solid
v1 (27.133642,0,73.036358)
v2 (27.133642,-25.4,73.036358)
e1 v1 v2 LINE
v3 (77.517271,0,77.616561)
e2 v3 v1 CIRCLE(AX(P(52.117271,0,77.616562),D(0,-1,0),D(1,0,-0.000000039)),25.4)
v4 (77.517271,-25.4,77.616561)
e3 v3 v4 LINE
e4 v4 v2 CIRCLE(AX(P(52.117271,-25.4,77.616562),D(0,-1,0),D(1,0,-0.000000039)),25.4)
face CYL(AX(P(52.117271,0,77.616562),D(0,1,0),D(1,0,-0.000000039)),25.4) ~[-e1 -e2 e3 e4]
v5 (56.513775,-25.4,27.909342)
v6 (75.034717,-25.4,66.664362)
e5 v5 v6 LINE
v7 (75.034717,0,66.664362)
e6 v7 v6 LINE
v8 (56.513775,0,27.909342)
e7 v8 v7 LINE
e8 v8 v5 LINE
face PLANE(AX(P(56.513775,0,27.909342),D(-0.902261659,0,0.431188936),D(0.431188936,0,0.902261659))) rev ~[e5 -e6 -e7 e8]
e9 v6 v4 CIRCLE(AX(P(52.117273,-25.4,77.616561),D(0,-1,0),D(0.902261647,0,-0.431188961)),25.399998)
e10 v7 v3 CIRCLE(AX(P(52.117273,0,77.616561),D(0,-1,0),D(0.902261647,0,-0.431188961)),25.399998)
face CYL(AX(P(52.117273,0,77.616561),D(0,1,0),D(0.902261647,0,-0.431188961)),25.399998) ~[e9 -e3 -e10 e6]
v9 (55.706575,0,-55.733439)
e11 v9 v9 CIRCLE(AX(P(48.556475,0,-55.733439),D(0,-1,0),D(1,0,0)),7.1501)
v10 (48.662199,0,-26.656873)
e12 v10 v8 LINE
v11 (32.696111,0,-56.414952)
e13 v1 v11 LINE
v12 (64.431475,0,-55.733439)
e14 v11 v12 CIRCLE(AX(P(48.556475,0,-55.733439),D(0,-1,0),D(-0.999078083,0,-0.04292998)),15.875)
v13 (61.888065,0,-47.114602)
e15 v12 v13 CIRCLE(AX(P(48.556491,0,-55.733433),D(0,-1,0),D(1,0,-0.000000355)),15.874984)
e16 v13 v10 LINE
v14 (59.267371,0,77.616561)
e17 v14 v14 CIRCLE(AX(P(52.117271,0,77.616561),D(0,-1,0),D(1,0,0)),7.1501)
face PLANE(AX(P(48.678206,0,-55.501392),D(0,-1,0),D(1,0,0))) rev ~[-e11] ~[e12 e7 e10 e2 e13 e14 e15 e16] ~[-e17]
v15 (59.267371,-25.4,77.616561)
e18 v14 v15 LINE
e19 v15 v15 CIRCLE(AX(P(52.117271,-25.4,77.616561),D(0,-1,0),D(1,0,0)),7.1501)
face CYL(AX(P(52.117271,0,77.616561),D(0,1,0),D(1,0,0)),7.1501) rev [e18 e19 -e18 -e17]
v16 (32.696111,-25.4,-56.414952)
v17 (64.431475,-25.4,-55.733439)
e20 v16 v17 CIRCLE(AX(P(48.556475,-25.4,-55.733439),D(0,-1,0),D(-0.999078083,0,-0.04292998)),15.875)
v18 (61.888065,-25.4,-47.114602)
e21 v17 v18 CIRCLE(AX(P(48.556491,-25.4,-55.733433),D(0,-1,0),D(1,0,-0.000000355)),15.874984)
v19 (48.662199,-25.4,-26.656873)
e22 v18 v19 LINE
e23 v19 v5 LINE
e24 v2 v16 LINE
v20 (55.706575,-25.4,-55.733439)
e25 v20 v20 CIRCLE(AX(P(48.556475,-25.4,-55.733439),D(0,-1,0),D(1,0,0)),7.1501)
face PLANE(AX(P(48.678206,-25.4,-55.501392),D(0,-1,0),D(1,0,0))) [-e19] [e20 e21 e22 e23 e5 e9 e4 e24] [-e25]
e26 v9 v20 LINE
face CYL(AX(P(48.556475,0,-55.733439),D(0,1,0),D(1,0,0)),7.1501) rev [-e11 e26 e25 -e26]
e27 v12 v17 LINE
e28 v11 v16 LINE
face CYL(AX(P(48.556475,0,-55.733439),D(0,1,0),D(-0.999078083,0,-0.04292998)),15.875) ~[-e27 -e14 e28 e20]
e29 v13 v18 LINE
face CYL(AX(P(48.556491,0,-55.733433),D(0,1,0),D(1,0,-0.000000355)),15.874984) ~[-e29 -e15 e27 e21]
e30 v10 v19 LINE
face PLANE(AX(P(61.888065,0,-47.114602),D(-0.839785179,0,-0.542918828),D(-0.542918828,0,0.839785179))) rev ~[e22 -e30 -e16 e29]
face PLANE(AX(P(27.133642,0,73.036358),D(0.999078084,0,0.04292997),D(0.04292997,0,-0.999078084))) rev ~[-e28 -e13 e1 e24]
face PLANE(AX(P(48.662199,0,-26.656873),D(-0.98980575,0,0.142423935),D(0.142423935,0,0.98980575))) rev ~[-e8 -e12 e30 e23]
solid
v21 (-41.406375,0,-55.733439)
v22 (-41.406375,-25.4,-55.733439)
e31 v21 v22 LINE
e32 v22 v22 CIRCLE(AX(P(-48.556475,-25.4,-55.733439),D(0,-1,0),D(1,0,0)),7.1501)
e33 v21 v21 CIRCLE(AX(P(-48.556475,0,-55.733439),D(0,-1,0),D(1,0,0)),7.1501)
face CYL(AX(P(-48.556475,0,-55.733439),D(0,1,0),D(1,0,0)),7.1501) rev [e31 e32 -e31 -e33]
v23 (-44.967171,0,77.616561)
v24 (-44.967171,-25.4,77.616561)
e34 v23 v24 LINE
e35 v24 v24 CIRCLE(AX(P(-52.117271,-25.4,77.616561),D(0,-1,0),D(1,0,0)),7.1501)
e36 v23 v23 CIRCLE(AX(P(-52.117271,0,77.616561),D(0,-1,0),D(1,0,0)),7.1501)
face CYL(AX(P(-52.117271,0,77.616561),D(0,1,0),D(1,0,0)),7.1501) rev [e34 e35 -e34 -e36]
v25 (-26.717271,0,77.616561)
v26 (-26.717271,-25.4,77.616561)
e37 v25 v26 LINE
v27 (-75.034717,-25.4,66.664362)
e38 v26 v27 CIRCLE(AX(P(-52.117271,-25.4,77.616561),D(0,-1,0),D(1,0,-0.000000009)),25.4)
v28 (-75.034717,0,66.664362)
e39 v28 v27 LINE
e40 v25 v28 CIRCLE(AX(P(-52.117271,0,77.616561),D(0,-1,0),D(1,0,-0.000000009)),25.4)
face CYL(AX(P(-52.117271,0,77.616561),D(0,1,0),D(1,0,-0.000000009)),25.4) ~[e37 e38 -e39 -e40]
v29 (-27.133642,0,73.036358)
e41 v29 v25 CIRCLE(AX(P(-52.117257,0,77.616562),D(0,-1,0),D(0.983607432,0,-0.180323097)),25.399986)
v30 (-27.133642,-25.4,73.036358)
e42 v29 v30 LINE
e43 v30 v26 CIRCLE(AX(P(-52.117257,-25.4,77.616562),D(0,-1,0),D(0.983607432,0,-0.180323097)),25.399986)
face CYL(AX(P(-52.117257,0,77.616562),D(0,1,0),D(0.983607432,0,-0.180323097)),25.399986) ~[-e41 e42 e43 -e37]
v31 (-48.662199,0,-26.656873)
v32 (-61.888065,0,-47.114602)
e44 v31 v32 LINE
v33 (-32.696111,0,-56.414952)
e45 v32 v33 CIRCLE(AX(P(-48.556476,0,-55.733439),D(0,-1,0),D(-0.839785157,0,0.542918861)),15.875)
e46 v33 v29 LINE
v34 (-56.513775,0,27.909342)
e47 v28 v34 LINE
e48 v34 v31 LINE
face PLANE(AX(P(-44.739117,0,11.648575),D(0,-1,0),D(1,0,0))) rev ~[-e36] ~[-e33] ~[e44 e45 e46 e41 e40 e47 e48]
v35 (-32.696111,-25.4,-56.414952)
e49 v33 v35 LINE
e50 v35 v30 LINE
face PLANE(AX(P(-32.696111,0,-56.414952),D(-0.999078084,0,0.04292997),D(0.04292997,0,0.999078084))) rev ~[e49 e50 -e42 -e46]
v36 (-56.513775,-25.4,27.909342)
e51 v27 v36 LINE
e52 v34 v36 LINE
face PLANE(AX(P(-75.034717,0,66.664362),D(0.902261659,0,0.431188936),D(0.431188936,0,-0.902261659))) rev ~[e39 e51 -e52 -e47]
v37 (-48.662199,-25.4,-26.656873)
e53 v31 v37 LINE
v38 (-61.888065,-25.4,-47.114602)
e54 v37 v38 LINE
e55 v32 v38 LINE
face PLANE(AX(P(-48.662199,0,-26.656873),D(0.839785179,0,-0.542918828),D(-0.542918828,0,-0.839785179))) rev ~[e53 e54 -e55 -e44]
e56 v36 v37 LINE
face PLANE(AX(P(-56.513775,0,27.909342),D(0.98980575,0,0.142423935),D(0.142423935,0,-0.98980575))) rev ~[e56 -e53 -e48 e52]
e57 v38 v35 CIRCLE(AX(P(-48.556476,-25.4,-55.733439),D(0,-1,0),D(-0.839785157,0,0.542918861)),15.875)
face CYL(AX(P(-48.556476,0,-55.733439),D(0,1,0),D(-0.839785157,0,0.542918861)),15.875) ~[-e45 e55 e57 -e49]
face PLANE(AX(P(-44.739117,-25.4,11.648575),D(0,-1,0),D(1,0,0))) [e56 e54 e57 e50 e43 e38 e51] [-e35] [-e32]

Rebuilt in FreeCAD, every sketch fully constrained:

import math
import FreeCAD as App
import Part
import Sketcher
Q = App.Units.Quantity

doc = App.newDocument("Part")
body = doc.addObject("PartDesign::Body", "Body")
body.AllowCompound = True

sketch1 = body.newObject("Sketcher::SketchObject", "Sketch")
sketch1.AttachmentSupport = (doc.getObject("XZ_Plane"), [""])
sketch1.MapMode = "FlatFace"
sketch1.addGeometry(Part.LineSegment(App.Vector(-75.034717, 66.664362, 0), App.Vector(-56.513775, 27.909342, 0)), False)
sketch1.addGeometry(Part.LineSegment(App.Vector(-56.513775, 27.909342, 0), App.Vector(-48.662199, -26.656873, 0)), False)
sketch1.addGeometry(Part.LineSegment(App.Vector(-48.662199, -26.656873, 0), App.Vector(-61.888065, -47.114602, 0)), False)
sketch1.addGeometry(Part.ArcOfCircle(Part.Circle(App.Vector(-48.556476, -55.733439, 0), App.Vector(0, 0, 1), 15.875), math.radians(147.11744), math.radians(357.539539)), False)
sketch1.addGeometry(Part.LineSegment(App.Vector(-32.696111, -56.414952, 0), App.Vector(-27.133642, 73.036358, 0)), False)
sketch1.addGeometry(Part.ArcOfCircle(Part.Circle(App.Vector(-52.117257, 77.616562, 0), App.Vector(0, 0, 1), 25.399986), math.radians(-10.38858), math.radians(-0.000003)), False)
sketch1.addGeometry(Part.ArcOfCircle(Part.Circle(App.Vector(-52.117271, 77.616561, 0), App.Vector(0, 0, 1), 25.4), math.radians(-0.000001), math.radians(205.543037)), False)
sketch1.addGeometry(Part.Circle(App.Vector(-48.556475, -55.733439, 0), App.Vector(0, 0, 1), 7.1501), False)
sketch1.addGeometry(Part.Circle(App.Vector(-52.117271, 77.616561, 0), App.Vector(0, 0, 1), 7.1501), False)
sketch1.addGeometry(Part.ArcOfCircle(Part.Circle(App.Vector(48.556491, -55.733433, 0), App.Vector(0, 0, 1), 15.874984), math.radians(-0.00002), math.radians(32.882573)), False)
sketch1.addGeometry(Part.LineSegment(App.Vector(61.888065, -47.114602, 0), App.Vector(48.662199, -26.656873, 0)), False)
sketch1.addGeometry(Part.LineSegment(App.Vector(48.662199, -26.656873, 0), App.Vector(56.513775, 27.909342, 0)), False)
sketch1.addGeometry(Part.LineSegment(App.Vector(56.513775, 27.909342, 0), App.Vector(75.034717, 66.664362, 0)), False)
sketch1.addGeometry(Part.ArcOfCircle(Part.Circle(App.Vector(52.117273, 77.616561, 0), App.Vector(0, 0, 1), 25.399998), math.radians(-25.543038), math.radians(0)), False)
sketch1.addGeometry(Part.ArcOfCircle(Part.Circle(App.Vector(52.117271, 77.616562, 0), App.Vector(0, 0, 1), 25.4), math.radians(-0.000002), math.radians(190.388574)), False)
sketch1.addGeometry(Part.LineSegment(App.Vector(27.133642, 73.036358, 0), App.Vector(32.696111, -56.414952, 0)), False)
sketch1.addGeometry(Part.ArcOfCircle(Part.Circle(App.Vector(48.556475, -55.733439, 0), App.Vector(0, 0, 1), 15.875), math.radians(-177.539537), math.radians(-0.000002)), False)
sketch1.addGeometry(Part.Circle(App.Vector(48.556475, -55.733439, 0), App.Vector(0, 0, 1), 7.1501), False)
sketch1.addGeometry(Part.Circle(App.Vector(52.117271, 77.616561, 0), App.Vector(0, 0, 1), 7.1501), False)
sketch1.addConstraint(Sketcher.Constraint("Coincident", 0, 2, 1, 1))
sketch1.addConstraint(Sketcher.Constraint("Coincident", 1, 2, 2, 1))
sketch1.addConstraint(Sketcher.Constraint("Tangent", 2, 2, 3, 1))
sketch1.addConstraint(Sketcher.Constraint("Tangent", 3, 2, 4, 1))
sketch1.addConstraint(Sketcher.Constraint("Coincident", 4, 2, 5, 1))
sketch1.addConstraint(Sketcher.Constraint("Tangent", 5, 2, 6, 1))
sketch1.addConstraint(Sketcher.Constraint("Tangent", 6, 2, 0, 1))
sketch1.addConstraint(Sketcher.Constraint("Tangent", 9, 2, 10, 1))
sketch1.addConstraint(Sketcher.Constraint("Coincident", 10, 2, 11, 1))
sketch1.addConstraint(Sketcher.Constraint("Coincident", 11, 2, 12, 1))
sketch1.addConstraint(Sketcher.Constraint("Tangent", 12, 2, 13, 1))
sketch1.addConstraint(Sketcher.Constraint("Tangent", 13, 2, 14, 1))
sketch1.addConstraint(Sketcher.Constraint("Coincident", 14, 2, 15, 1))
sketch1.addConstraint(Sketcher.Constraint("Tangent", 15, 2, 16, 1))
sketch1.addConstraint(Sketcher.Constraint("Tangent", 16, 2, 9, 1))
sketch1.addConstraint(Sketcher.Constraint("Coincident", 7, 3, 3, 3))
sketch1.addConstraint(Sketcher.Constraint("Coincident", 8, 3, 6, 3))
sketch1.addConstraint(Sketcher.Constraint("Coincident", 17, 3, 16, 3))
sketch1.addConstraint(Sketcher.Constraint("Coincident", 18, 3, 13, 3))
sketch1.addConstraint(Sketcher.Constraint("Equal", 7, 8))
sketch1.addConstraint(Sketcher.Constraint("Equal", 6, 13))
sketch1.addConstraint(Sketcher.Constraint("Equal", 13, 14))
sketch1.addConstraint(Sketcher.Constraint("Equal", 3, 16))
sketch1.addConstraint(Sketcher.Constraint("Equal", 8, 17))
sketch1.addConstraint(Sketcher.Constraint("Equal", 17, 18))
sketch1.addConstraint(Sketcher.Constraint("Symmetric", 6, 3, 13, 3, -2))
sketch1.addConstraint(Sketcher.Constraint("Symmetric", 3, 3, 16, 3, -2))
sketch1.addConstraint(Sketcher.Constraint("Symmetric", 2, 2, 9, 2, -2))
sketch1.addConstraint(Sketcher.Constraint("Symmetric", 0, 2, 11, 2, -2))
sketch1.addConstraint(Sketcher.Constraint("Symmetric", 4, 2, 14, 2, -2))
sketch1.addConstraint(Sketcher.Constraint("Horizontal", 18, 3, 5, 2))
sketch1.addConstraint(Sketcher.Constraint("Horizontal", 1, 2, 10, 2))
sketch1.addConstraint(Sketcher.Constraint("Horizontal", 5, 2, 13, 2))
sketch1.addConstraint(Sketcher.Constraint("Horizontal", 17, 3, 16, 2))
sketch1.addConstraint(Sketcher.Constraint("Radius", 6, Q("1 in")))
sketch1.addConstraint(Sketcher.Constraint("Diameter", 7, Q("0.563 in")))
sketch1.addConstraint(Sketcher.Constraint("Radius", 3, Q("0.625 in")))
sketch1.addConstraint(Sketcher.Constraint("DistanceY", 3, 3, 5, 3, Q("5.25 in")))
sketch1.addConstraint(Sketcher.Constraint("DistanceX", 1, 2, -1, 1, Q("48.662199 mm")))
sketch1.addConstraint(Sketcher.Constraint("DistanceY", 2, 2, -1, 1, Q("47.114602 mm")))
sketch1.addConstraint(Sketcher.Constraint("DistanceX", 0, 2, 3, 3, Q("7.957299 mm")))
sketch1.addConstraint(Sketcher.Constraint("DistanceY", 6, 2, 8, 3, Q("10.952199 mm")))
sketch1.addConstraint(Sketcher.Constraint("Distance", 2, Q("24.360669 mm")))
sketch1.addConstraint(Sketcher.Constraint("DistanceY", 3, 3, -1, 1, Q("55.733439 mm")))
sketch1.addConstraint(Sketcher.Constraint("DistanceX", 6, 3, -1, 1, Q("52.117271 mm")))
sketch1.addConstraint(Sketcher.Constraint("DistanceX", 4, 2, -1, 1, Q("27.133642 mm")))
pad1 = body.newObject("PartDesign::Pad", "Pad")
pad1.Profile = sketch1
pad1.Length = Q("1 in")

doc.recompute()
